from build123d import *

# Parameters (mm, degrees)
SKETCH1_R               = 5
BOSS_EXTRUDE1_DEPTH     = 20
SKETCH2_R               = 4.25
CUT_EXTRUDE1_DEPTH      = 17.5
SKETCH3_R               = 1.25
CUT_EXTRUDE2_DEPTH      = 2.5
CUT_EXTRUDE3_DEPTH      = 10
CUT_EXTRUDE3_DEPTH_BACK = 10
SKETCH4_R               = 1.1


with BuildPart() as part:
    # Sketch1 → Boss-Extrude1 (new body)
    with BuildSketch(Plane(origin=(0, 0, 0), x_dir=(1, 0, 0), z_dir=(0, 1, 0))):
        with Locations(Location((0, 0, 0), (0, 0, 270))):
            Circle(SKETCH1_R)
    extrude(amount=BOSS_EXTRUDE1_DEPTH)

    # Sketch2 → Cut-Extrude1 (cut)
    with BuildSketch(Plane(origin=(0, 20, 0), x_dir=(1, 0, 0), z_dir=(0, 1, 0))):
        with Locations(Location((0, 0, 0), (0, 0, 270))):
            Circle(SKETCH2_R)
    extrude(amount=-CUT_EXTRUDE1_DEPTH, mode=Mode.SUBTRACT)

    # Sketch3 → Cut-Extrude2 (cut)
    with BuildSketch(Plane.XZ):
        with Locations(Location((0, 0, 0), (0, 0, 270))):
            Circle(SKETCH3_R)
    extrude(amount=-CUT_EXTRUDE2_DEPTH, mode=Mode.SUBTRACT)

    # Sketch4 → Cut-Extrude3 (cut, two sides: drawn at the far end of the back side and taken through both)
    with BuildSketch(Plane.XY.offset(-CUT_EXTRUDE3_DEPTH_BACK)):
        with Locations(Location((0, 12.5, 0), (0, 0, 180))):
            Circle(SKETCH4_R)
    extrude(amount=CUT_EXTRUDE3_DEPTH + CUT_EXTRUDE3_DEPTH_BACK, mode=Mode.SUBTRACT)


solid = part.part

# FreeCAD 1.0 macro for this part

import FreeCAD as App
import Part
import Sketcher
Q = App.Units.Quantity

doc = App.newDocument("Part")
body = doc.addObject("PartDesign::Body", "Body")

sketch1 = body.newObject("Sketcher::SketchObject", "Sketch")
sketch1.AttachmentSupport = (doc.getObject("XZ_Plane"), [""])
sketch1.MapMode = "FlatFace"
sketch1.addGeometry(Part.Circle(App.Vector(0, 0, 0), App.Vector(0, 0, 1), 5), False)
sketch1.addConstraint(Sketcher.Constraint("Coincident", 0, 3, -1, 1))
sketch1.addConstraint(Sketcher.Constraint("Diameter", 0, Q("10 mm")))
pad1 = body.newObject("PartDesign::Pad", "Pad")
pad1.Profile = sketch1
pad1.Length = 20
pad1.Reversed = True

sketch2 = body.newObject("Sketcher::SketchObject", "Sketch001")
sketch2.AttachmentSupport = (doc.getObject("XZ_Plane"), [""])
sketch2.MapMode = "FlatFace"
sketch2.AttachmentOffset = App.Placement(App.Vector(0, 0, -20), App.Rotation())
sketch2.addGeometry(Part.Circle(App.Vector(0, 0, 0), App.Vector(0, 0, 1), 4.2), False)
sketch2.addConstraint(Sketcher.Constraint("Coincident", 0, 3, -1, 1))
sketch2.addConstraint(Sketcher.Constraint("Diameter", 0, Q("8.5 mm")))
pocket1 = body.newObject("PartDesign::Pocket", "Pocket")
pocket1.Profile = sketch2
pocket1.Length = 17.5
pocket1.Reversed = True

sketch3 = body.newObject("Sketcher::SketchObject", "Sketch002")
sketch3.AttachmentSupport = (doc.getObject("XZ_Plane"), [""])
sketch3.MapMode = "FlatFace"
sketch3.addGeometry(Part.Circle(App.Vector(0, 0, 0), App.Vector(0, 0, 1), 1.2), False)
sketch3.addConstraint(Sketcher.Constraint("Coincident", 0, 3, -1, 1))
sketch3.addConstraint(Sketcher.Constraint("Diameter", 0, Q("2.5 mm")))
pocket2 = body.newObject("PartDesign::Pocket", "Pocket001")
pocket2.Profile = sketch3
pocket2.Length = 2.5

sketch4 = body.newObject("Sketcher::SketchObject", "Sketch003")
sketch4.AttachmentSupport = (doc.getObject("XY_Plane"), [""])
sketch4.MapMode = "FlatFace"
sketch4.addGeometry(Part.Circle(App.Vector(0, 12.5, 0), App.Vector(0, 0, 1), 1.1), False)
sketch4.addConstraint(Sketcher.Constraint("PointOnObject", 0, 3, -2))
sketch4.addConstraint(Sketcher.Constraint("Diameter", 0, Q("2.2 mm")))
sketch4.addConstraint(Sketcher.Constraint("DistanceY", -1, 1, 0, 3, Q("12.5 mm")))
pocket3 = body.newObject("PartDesign::Pocket", "Pocket002")
pocket3.Profile = sketch4
pocket3.Type = "ThroughAll"
pocket3.Midplane = True

doc.recompute()
